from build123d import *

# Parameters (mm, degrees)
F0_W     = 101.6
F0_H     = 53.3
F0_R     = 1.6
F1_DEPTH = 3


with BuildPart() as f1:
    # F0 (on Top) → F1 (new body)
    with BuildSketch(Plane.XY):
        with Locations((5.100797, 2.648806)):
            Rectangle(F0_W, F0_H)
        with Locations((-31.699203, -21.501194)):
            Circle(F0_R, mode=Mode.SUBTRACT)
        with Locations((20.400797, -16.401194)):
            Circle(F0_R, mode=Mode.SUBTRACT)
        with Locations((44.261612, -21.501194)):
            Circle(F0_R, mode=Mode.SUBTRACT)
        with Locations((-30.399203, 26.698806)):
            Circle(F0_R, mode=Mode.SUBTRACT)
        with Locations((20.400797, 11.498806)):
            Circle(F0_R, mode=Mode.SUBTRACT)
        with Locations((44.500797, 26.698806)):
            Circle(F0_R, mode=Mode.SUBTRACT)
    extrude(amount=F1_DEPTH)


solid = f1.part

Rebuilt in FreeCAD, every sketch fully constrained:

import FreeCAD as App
import Part
import Sketcher

V = App.Vector

doc = App.newDocument("Part")
body = doc.addObject("PartDesign::Body", "Body")

# Sketch on XY plane
sketch1 = doc.addObject("Sketcher::SketchObject", "Sketch")
body.addObject(sketch1)
sketch1.AttachmentSupport = (doc.XY_Plane, [""])
sketch1.MapMode = "FlatFace"
sketch1.addGeometry(Part.LineSegment(V(-45.7, 29.3, 0), V(-45.7, -24, 0)), False)
sketch1.addGeometry(Part.LineSegment(V(-45.7, -24, 0), V(55.9, -24, 0)), False)
sketch1.addGeometry(Part.LineSegment(V(55.9, -24, 0), V(55.9, 29.3, 0)), False)
sketch1.addGeometry(Part.LineSegment(V(55.9, 29.3, 0), V(-45.7, 29.3, 0)), False)
sketch1.addGeometry(Part.Circle(V(-31.7, -21.5, 0), V(0, 0, 1), 1.6), False)
sketch1.addGeometry(Part.Circle(V(20.4, -16.4, 0), V(0, 0, 1), 1.6), False)
sketch1.addGeometry(Part.Circle(V(44.3, -21.5, 0), V(0, 0, 1), 1.6), False)
sketch1.addGeometry(Part.Circle(V(-30.4, 26.7, 0), V(0, 0, 1), 1.6), False)
sketch1.addGeometry(Part.Circle(V(20.4, 11.5, 0), V(0, 0, 1), 1.6), False)
sketch1.addGeometry(Part.Circle(V(44.5, 26.7, 0), V(0, 0, 1), 1.6), False)
sketch1.addConstraint(Sketcher.Constraint("Coincident", 0, 2, 1, 1))
sketch1.addConstraint(Sketcher.Constraint("Coincident", 1, 2, 2, 1))
sketch1.addConstraint(Sketcher.Constraint("Coincident", 2, 2, 3, 1))
sketch1.addConstraint(Sketcher.Constraint("Coincident", 3, 2, 0, 1))
sketch1.addConstraint(Sketcher.Constraint("Vertical", 0))
sketch1.addConstraint(Sketcher.Constraint("Horizontal", 1))
sketch1.addConstraint(Sketcher.Constraint("Vertical", 2))
sketch1.addConstraint(Sketcher.Constraint("Horizontal", 3))
sketch1.addConstraint(Sketcher.Constraint("Equal", 4, 5))
sketch1.addConstraint(Sketcher.Constraint("Equal", 5, 6))
sketch1.addConstraint(Sketcher.Constraint("Equal", 6, 7))
sketch1.addConstraint(Sketcher.Constraint("Equal", 7, 8))
sketch1.addConstraint(Sketcher.Constraint("Equal", 8, 9))
sketch1.addConstraint(Sketcher.Constraint("Horizontal", 4, 3, 6, 3))
sketch1.addConstraint(Sketcher.Constraint("Horizontal", 7, 3, 9, 3))
sketch1.addConstraint(Sketcher.Constraint("Vertical", 5, 3, 8, 3))
sketch1.addConstraint(Sketcher.Constraint("Diameter", 4, 3.2))
sketch1.addConstraint(Sketcher.Constraint("DistanceX", 1, 1, 1, 2, 101.6))
sketch1.addConstraint(Sketcher.Constraint("DistanceY", 0, 2, 0, 1, 53.3))
sketch1.addConstraint(Sketcher.Constraint("DistanceY", 6, 3, 8, 3, 33.0))
sketch1.addConstraint(Sketcher.Constraint("DistanceX", 0, 2, 4, 3, 14.0))
sketch1.addConstraint(Sketcher.Constraint("DistanceX", 4, 3, 5, 3, 52.1))
sketch1.addConstraint(Sketcher.Constraint("DistanceY", 4, 3, 5, 3, 5.1))
sketch1.addConstraint(Sketcher.Constraint("DistanceX", 4, 3, 7, 3, 1.3))
sketch1.addConstraint(Sketcher.Constraint("DistanceY", 4, 3, 7, 3, 48.2))
sketch1.addConstraint(Sketcher.Constraint("DistanceX", 8, 3, 9, 3, 24.1))
sketch1.addConstraint(Sketcher.Constraint("DistanceY", 0, 2, 4, 3, 2.5))
sketch1.addConstraint(Sketcher.Constraint("DistanceX", 4, 3, -1, 1, 31.699203))
sketch1.addConstraint(Sketcher.Constraint("DistanceY", 4, 3, -1, 1, 21.501194))
sketch1.addConstraint(Sketcher.Constraint("DistanceX", -1, 1, 6, 3, 44.261612))
pad1 = doc.addObject("PartDesign::Pad", "Pad")
body.addObject(pad1)
pad1.Profile = sketch1
pad1.Length = 3

doc.recompute()
